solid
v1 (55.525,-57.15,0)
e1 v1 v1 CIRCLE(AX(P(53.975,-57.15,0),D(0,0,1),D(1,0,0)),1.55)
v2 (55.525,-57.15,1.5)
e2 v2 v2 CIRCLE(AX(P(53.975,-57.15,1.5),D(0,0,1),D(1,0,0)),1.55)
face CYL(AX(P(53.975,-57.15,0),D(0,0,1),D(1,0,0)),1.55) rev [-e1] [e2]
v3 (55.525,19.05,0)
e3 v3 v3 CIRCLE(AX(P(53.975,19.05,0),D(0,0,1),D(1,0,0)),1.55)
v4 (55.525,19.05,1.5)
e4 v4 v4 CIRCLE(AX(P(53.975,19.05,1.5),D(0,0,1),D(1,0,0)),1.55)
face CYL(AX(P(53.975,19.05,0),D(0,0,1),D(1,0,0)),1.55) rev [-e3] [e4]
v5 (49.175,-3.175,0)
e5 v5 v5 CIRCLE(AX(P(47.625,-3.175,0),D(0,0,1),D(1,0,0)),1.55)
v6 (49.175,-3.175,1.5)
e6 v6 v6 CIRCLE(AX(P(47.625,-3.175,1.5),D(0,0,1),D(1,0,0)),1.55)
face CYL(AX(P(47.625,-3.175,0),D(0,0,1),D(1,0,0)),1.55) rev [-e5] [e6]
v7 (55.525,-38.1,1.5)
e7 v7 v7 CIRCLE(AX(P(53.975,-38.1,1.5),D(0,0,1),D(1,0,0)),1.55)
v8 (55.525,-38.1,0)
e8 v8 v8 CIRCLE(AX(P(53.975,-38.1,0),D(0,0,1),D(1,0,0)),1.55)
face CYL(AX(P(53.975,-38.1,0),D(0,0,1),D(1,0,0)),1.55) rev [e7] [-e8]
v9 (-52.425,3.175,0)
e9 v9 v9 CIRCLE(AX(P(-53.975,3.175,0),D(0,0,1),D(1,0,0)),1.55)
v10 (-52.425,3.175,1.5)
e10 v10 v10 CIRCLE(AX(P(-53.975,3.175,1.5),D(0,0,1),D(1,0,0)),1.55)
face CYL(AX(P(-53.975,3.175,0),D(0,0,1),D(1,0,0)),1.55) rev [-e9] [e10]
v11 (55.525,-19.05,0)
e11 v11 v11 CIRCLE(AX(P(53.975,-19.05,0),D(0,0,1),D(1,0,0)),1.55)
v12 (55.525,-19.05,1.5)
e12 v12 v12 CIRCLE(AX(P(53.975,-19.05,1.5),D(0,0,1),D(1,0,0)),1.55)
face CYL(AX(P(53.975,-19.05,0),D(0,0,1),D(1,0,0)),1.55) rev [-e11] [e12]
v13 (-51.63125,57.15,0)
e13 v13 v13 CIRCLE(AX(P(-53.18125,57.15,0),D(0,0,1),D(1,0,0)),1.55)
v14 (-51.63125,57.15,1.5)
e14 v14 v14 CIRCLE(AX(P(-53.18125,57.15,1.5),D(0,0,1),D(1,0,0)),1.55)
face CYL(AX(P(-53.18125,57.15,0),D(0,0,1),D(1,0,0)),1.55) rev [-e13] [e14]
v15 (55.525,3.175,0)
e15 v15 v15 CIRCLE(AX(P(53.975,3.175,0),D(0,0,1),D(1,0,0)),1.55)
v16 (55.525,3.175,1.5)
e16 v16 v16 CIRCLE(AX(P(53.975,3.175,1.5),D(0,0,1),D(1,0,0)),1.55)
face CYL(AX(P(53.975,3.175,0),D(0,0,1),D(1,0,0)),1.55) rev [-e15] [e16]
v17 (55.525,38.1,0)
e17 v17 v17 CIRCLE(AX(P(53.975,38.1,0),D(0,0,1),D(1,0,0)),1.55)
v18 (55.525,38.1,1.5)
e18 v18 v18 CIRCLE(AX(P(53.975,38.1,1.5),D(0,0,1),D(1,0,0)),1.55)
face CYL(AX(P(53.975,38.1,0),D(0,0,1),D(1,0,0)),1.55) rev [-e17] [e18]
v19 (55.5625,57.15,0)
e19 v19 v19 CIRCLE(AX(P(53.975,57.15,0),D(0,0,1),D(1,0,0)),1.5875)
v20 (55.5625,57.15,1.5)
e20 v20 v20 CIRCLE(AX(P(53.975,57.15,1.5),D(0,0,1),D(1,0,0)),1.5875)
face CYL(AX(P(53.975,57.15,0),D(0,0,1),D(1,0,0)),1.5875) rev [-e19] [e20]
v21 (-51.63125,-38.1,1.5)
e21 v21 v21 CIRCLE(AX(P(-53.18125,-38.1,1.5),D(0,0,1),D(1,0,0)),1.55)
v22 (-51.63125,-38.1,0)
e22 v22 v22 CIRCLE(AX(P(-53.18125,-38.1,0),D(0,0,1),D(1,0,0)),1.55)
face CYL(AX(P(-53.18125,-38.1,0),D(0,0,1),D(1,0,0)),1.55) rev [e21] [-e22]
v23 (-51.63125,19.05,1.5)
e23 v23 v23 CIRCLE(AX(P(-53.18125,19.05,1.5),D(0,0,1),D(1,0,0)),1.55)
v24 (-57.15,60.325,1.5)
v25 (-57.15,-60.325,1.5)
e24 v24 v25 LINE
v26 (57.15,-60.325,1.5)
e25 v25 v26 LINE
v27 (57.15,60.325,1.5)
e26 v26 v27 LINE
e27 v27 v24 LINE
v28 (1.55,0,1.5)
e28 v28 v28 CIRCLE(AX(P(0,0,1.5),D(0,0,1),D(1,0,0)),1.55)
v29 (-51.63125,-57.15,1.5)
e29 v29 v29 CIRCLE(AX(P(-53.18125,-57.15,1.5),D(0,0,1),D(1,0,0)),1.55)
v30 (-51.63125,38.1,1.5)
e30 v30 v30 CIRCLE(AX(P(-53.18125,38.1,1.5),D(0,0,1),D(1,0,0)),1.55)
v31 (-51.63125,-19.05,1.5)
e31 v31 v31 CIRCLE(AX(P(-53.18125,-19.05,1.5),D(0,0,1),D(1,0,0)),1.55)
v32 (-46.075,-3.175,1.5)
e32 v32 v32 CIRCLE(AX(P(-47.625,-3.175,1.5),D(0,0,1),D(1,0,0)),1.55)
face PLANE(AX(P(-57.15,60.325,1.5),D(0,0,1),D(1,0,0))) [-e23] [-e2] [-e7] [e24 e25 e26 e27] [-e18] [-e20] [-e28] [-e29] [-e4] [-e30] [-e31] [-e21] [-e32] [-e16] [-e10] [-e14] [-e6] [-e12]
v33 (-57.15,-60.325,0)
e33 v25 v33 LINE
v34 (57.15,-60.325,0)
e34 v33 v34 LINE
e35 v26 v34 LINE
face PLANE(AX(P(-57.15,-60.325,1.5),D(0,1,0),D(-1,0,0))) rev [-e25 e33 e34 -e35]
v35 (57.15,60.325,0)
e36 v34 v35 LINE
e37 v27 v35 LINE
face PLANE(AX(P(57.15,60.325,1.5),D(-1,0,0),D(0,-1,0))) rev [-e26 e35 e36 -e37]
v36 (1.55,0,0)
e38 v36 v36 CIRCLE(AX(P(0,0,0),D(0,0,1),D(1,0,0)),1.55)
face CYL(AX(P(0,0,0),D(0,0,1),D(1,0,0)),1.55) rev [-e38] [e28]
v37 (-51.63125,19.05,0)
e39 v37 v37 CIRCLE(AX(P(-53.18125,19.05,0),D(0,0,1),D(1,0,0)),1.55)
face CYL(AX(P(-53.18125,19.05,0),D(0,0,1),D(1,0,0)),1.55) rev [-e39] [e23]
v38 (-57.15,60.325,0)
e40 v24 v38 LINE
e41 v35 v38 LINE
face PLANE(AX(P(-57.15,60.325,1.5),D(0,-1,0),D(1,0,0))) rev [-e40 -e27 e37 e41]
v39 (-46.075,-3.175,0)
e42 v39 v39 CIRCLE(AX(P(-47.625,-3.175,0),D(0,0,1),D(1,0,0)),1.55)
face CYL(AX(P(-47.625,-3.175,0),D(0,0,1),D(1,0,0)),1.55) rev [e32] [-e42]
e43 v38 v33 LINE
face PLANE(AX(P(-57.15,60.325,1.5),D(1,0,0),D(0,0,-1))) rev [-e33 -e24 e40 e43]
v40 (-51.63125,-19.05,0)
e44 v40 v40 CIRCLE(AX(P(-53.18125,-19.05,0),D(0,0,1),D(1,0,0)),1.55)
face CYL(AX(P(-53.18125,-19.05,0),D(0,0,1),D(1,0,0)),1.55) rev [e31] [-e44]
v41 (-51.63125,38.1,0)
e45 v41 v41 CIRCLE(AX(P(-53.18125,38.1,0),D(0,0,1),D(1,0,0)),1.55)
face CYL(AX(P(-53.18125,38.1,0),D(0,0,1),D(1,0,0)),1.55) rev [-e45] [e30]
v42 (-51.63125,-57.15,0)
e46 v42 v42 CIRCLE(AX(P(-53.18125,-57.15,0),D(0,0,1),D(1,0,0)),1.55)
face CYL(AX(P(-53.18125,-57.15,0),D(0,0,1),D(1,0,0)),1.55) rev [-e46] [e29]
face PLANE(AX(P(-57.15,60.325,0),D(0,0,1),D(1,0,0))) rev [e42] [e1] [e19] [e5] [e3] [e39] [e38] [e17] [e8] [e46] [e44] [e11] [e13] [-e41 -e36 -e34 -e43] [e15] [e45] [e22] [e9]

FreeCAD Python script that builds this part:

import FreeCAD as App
import Part
import Sketcher
from FreeCAD import Vector
Q = App.Units.Quantity

doc = App.newDocument("Part")
body = doc.addObject("PartDesign::Body", "Body")

# Sketch on XY plane
sketch1 = doc.addObject("Sketcher::SketchObject", "Sketch")
body.addObject(sketch1)
sketch1.AttachmentSupport = (doc.XY_Plane, [""])
sketch1.MapMode = "FlatFace"
sketch1.addGeometry([
    Part.LineSegment(Vector(-57, 60, 0), Vector(-57, -60, 0)),
    Part.LineSegment(Vector(-57, -60, 0), Vector(57, -60, 0)),
    Part.LineSegment(Vector(57, -60, 0), Vector(57, 60, 0)),
    Part.LineSegment(Vector(57, 60, 0), Vector(-57, 60, 0)),
], False)
sketch1.addConstraint([
    Sketcher.Constraint("Coincident", 0, 2, 1, 1),
    Sketcher.Constraint("Coincident", 1, 2, 2, 1),
    Sketcher.Constraint("Coincident", 2, 2, 3, 1),
    Sketcher.Constraint("Coincident", 3, 2, 0, 1),
    Sketcher.Constraint("Vertical", 0),
    Sketcher.Constraint("Horizontal", 1),
    Sketcher.Constraint("Vertical", 2),
    Sketcher.Constraint("Horizontal", 3),
    Sketcher.Constraint("Symmetric", 0, 2, 2, 2, -1, 1),
    Sketcher.Constraint("DistanceX", 1, 1, 1, 2, Q("4.5 in")),
    Sketcher.Constraint("DistanceY", 0, 2, 0, 1, Q("4.75 in")),
])
pad1 = doc.addObject("PartDesign::Pad", "Pad")
body.addObject(pad1)
pad1.Profile = sketch1
pad1.Length = 1.5

# Sketch on XY plane
sketch2 = doc.addObject("Sketcher::SketchObject", "Sketch001")
body.addObject(sketch2)
sketch2.AttachmentSupport = (doc.XY_Plane, [""])
sketch2.MapMode = "FlatFace"
sketch2.AttachmentOffset = App.Placement(Vector(0, 0, 1.5), App.Rotation())
sketch2.addGeometry([
    Part.Circle(Vector(-54, 3.2, 0), Vector(0, 0, 1), 1.6),  # 0
    Part.Circle(Vector(-47.6, -3.2, 0), Vector(0, 0, 1), 1.6),  # 1
    Part.Circle(Vector(54, 3.2, 0), Vector(0, 0, 1), 1.6),  # 2
    Part.Circle(Vector(47.6, -3.2, 0), Vector(0, 0, 1), 1.6),  # 3
    Part.Circle(Vector(0, 0, 0), Vector(0, 0, 1), 1.6),  # 4
    Part.Circle(Vector(-53.2, 57.1, 0), Vector(0, 0, 1), 1.6),  # 5
    Part.Circle(Vector(-53.2, -19.1, 0), Vector(0, 0, 1), 1.6),  # 6
    Part.Circle(Vector(-53.2, 38.1, 0), Vector(0, 0, 1), 1.6),  # 7
    Part.Circle(Vector(-53.2, 19.1, 0), Vector(0, 0, 1), 1.6),  # 8
    Part.Circle(Vector(-53.2, -38.1, 0), Vector(0, 0, 1), 1.6),  # 9
    Part.Circle(Vector(-53.2, -57.1, 0), Vector(0, 0, 1), 1.6),  # 10
    Part.Circle(Vector(54, 57.1, 0), Vector(0, 0, 1), 1.6),  # 11
    Part.Circle(Vector(54, 38.1, 0), Vector(0, 0, 1), 1.6),  # 12
    Part.Circle(Vector(54, 19.1, 0), Vector(0, 0, 1), 1.6),  # 13
    Part.Circle(Vector(54, -19.1, 0), Vector(0, 0, 1), 1.6),  # 14
    Part.Circle(Vector(54, -38.1, 0), Vector(0, 0, 1), 1.6),  # 15
    Part.Circle(Vector(54, -57.1, 0), Vector(0, 0, 1), 1.6),  # 16
], False)
sketch2.addConstraint([
    Sketcher.Constraint("Coincident", 4, 3, -1, 1),
    Sketcher.Constraint("Equal", 0, 1),
    Sketcher.Constraint("Equal", 1, 2),
    Sketcher.Constraint("Equal", 2, 3),
    Sketcher.Constraint("Equal", 3, 4),
    Sketcher.Constraint("Equal", 4, 5),
    Sketcher.Constraint("Equal", 5, 6),
    Sketcher.Constraint("Equal", 6, 7),
    Sketcher.Constraint("Equal", 7, 8),
    Sketcher.Constraint("Equal", 8, 9),
    Sketcher.Constraint("Equal", 9, 10),
    Sketcher.Constraint("Equal", 10, 12),
    Sketcher.Constraint("Equal", 12, 13),
    Sketcher.Constraint("Equal", 13, 14),
    Sketcher.Constraint("Equal", 14, 15),
    Sketcher.Constraint("Equal", 15, 16),
    Sketcher.Constraint("Symmetric", 0, 3, 2, 3, -2),
    Sketcher.Constraint("Symmetric", 1, 3, 3, 3, -2),
    Sketcher.Constraint("Symmetric", 6, 3, 8, 3, -1),
    Sketcher.Constraint("Symmetric", 7, 3, 9, 3, -1),
    Sketcher.Constraint("Symmetric", 5, 3, 10, 3, -1),
    Sketcher.Constraint("Symmetric", 13, 3, 14, 3, -1),
    Sketcher.Constraint("Symmetric", 12, 3, 15, 3, -1),
    Sketcher.Constraint("Symmetric", 11, 3, 16, 3, -1),
    Sketcher.Constraint("Horizontal", 5, 3, 11, 3),
    Sketcher.Constraint("Horizontal", 7, 3, 12, 3),
    Sketcher.Constraint("Horizontal", 8, 3, 13, 3),
    Sketcher.Constraint("Vertical", 5, 3, 6, 3),
    Sketcher.Constraint("Vertical", 6, 3, 7, 3),
    Sketcher.Constraint("Vertical", 2, 3, 11, 3),
    Sketcher.Constraint("Vertical", 11, 3, 12, 3),
    Sketcher.Constraint("Vertical", 12, 3, 13, 3),
    Sketcher.Constraint("Diameter", 11, Q("0.125 in")),
    Sketcher.Constraint("DistanceX", 1, 3, 2, 3, Q("4 in")),
    Sketcher.Constraint("DistanceY", 6, 3, 5, 3, Q("3 in")),
    Sketcher.Constraint("DistanceY", -1, 1, 7, 3, Q("1.5 in")),
    Sketcher.Constraint("DistanceY", 8, 3, 5, 3, Q("1.5 in")),
    Sketcher.Constraint("Diameter", 0, 3.1),
    Sketcher.Constraint("DistanceX", 0, 3, 1, 3, Q("0.25 in")),
    Sketcher.Constraint("DistanceY", 1, 3, 0, 3, Q("0.25 in")),
    Sketcher.Constraint("DistanceY", -1, 1, 0, 3, Q("0.125 in")),
    Sketcher.Constraint("DistanceX", 5, 3, -1, 1, Q("2.09375 in")),
])
pocket1 = doc.addObject("PartDesign::Pocket", "Pocket")
body.addObject(pocket1)
pocket1.Profile = sketch2
pocket1.Type = "ThroughAll"

doc.recompute()
